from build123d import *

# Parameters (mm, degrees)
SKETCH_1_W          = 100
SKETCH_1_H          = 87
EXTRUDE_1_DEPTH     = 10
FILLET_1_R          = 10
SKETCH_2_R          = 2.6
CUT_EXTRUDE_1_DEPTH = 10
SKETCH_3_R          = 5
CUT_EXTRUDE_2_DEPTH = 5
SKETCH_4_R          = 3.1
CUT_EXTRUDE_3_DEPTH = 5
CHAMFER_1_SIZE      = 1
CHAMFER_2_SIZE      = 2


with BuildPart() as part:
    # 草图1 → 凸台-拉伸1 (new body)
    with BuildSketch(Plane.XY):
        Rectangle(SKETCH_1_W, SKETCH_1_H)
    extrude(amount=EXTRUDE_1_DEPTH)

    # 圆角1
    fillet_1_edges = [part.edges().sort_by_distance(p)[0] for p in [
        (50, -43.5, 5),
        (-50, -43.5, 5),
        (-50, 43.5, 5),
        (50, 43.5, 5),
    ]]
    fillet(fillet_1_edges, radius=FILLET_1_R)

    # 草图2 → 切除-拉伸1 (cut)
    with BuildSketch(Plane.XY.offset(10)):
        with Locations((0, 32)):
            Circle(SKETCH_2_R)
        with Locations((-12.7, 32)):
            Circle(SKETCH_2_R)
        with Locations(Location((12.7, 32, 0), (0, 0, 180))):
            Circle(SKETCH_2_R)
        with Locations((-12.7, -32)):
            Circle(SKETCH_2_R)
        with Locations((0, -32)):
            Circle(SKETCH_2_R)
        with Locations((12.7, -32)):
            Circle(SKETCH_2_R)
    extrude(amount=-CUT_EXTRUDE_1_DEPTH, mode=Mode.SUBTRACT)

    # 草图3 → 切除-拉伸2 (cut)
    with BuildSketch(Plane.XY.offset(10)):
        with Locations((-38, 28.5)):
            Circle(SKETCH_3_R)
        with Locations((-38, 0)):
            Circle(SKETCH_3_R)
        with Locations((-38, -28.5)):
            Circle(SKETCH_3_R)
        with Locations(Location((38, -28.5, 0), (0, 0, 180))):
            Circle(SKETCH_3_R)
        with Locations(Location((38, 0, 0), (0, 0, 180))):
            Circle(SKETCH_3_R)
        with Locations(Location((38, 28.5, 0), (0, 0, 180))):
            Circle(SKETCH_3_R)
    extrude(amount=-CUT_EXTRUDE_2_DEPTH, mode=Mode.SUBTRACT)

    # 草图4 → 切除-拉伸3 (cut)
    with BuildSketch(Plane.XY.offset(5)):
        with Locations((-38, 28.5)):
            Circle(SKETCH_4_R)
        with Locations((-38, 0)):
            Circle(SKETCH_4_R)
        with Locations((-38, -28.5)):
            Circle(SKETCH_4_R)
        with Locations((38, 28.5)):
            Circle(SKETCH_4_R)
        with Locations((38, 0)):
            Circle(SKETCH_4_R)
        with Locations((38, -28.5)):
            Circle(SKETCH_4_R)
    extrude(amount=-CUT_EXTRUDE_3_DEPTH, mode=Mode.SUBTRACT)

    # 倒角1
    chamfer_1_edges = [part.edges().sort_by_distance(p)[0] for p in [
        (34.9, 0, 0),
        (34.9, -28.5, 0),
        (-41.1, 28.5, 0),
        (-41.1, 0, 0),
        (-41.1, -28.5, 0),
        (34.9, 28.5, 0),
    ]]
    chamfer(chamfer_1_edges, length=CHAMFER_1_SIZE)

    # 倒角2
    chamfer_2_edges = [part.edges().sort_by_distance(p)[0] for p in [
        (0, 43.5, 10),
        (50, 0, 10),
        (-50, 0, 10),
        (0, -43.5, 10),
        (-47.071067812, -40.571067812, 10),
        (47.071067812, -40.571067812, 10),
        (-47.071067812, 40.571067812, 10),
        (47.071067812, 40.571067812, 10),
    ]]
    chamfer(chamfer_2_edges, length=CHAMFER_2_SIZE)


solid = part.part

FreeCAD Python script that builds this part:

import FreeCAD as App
import Part
import Sketcher
from FreeCAD import Vector
Q = App.Units.Quantity


def edges_at(feature, points):
    """Names of the edges that pass closest to the given points."""
    edges = feature.Shape.Edges
    near = lambda p: min(range(len(edges)), key=lambda i: edges[i].distToShape(Part.Vertex(*p))[0])
    return sorted({f"Edge{near(p) + 1}" for p in points})


def add_polygon(sketch, points):
    """Adds a closed chain of lines whose ends are joined by coincident constraints."""
    first, n = sketch.GeometryCount, len(points)
    for a, b in zip(points, points[1:] + points[:1]):
        sketch.addGeometry(Part.LineSegment(App.Vector(*a, 0), App.Vector(*b, 0)), False)
    for i in range(n):
        sketch.addConstraint(Sketcher.Constraint("Coincident", first + i, 2, first + (i + 1) % n, 1))

doc = App.newDocument("Part")
body = doc.addObject("PartDesign::Body", "Body")

sketch1 = body.newObject("Sketcher::SketchObject", "Sketch")
sketch1.AttachmentSupport = (doc.getObject("XY_Plane"), [""])
sketch1.MapMode = "FlatFace"
add_polygon(sketch1, [(-50, 44), (-50, -44), (50, -44), (50, 44)])
sketch1.addConstraint([
    Sketcher.Constraint("Vertical", 0),
    Sketcher.Constraint("Horizontal", 1),
    Sketcher.Constraint("Vertical", 2),
    Sketcher.Constraint("Horizontal", 3),
    Sketcher.Constraint("Symmetric", 0, 2, 2, 2, -1, 1),
    Sketcher.Constraint("DistanceX", 1, 1, 1, 2, Q("100 mm")),
    Sketcher.Constraint("DistanceY", 0, 2, 0, 1, Q("87 mm")),
])
pad1 = body.newObject("PartDesign::Pad", "Pad")
pad1.Profile = sketch1
pad1.Length = 10
doc.recompute()

fillet = body.newObject("PartDesign::Fillet", "Fillet")
fillet.Base = (pad1, edges_at(pad1, [
    (50, -43.5, 5),
    (-50, -43.5, 5),
    (-50, 43.5, 5),
    (50, 43.5, 5),
]))
fillet.Radius = 10

sketch2 = body.newObject("Sketcher::SketchObject", "Sketch001")
sketch2.AttachmentSupport = (doc.getObject("XY_Plane"), [""])
sketch2.MapMode = "FlatFace"
sketch2.AttachmentOffset = App.Placement(Vector(0, 0, 10), App.Rotation())
sketch2.addGeometry([
    Part.Circle(Vector(0, 32, 0), Vector(0, 0, 1), 2.6),
    Part.Circle(Vector(-12.7, 32, 0), Vector(0, 0, 1), 2.6),
    Part.Circle(Vector(12.7, 32, 0), Vector(0, 0, 1), 2.6),
    Part.Circle(Vector(-12.7, -32, 0), Vector(0, 0, 1), 2.6),
    Part.Circle(Vector(0, -32, 0), Vector(0, 0, 1), 2.6),
    Part.Circle(Vector(12.7, -32, 0), Vector(0, 0, 1), 2.6),
], False)
sketch2.addConstraint([
    Sketcher.Constraint("Equal", 0, 1),
    Sketcher.Constraint("Equal", 1, 2),
    Sketcher.Constraint("Equal", 2, 3),
    Sketcher.Constraint("Equal", 3, 4),
    Sketcher.Constraint("Equal", 4, 5),
    Sketcher.Constraint("Symmetric", 2, 3, 3, 3, -1, 1),
    Sketcher.Constraint("Symmetric", 0, 3, 4, 3, -1, 1),
    Sketcher.Constraint("Symmetric", 1, 3, 5, 3, -1, 1),
    Sketcher.Constraint("Symmetric", 1, 3, 2, 3, -2),
    Sketcher.Constraint("PointOnObject", 0, 3, -2),
    Sketcher.Constraint("Horizontal", 0, 3, 1, 3),
    Sketcher.Constraint("Diameter", 0, Q("5.2 mm")),
    Sketcher.Constraint("DistanceY", -1, 1, 0, 3, Q("32 mm")),
    Sketcher.Constraint("DistanceX", 1, 3, -1, 1, Q("12.7 mm")),
])
pocket1 = body.newObject("PartDesign::Pocket", "Pocket")
pocket1.Profile = sketch2
pocket1.Length = 10

sketch3 = body.newObject("Sketcher::SketchObject", "Sketch002")
sketch3.AttachmentSupport = (doc.getObject("XY_Plane"), [""])
sketch3.MapMode = "FlatFace"
sketch3.AttachmentOffset = App.Placement(Vector(0, 0, 10), App.Rotation())
sketch3.addGeometry([
    Part.Circle(Vector(-38, 28, 0), Vector(0, 0, 1), 5),
    Part.Circle(Vector(-38, 0, 0), Vector(0, 0, 1), 5),
    Part.Circle(Vector(-38, -28, 0), Vector(0, 0, 1), 5),
    Part.Circle(Vector(38, -28, 0), Vector(0, 0, 1), 5),
    Part.Circle(Vector(38, 0, 0), Vector(0, 0, 1), 5),
    Part.Circle(Vector(38, 28, 0), Vector(0, 0, 1), 5),
], False)
sketch3.addConstraint([
    Sketcher.Constraint("Equal", 0, 1),
    Sketcher.Constraint("Equal", 1, 2),
    Sketcher.Constraint("Equal", 2, 3),
    Sketcher.Constraint("Equal", 3, 4),
    Sketcher.Constraint("Equal", 4, 5),
    Sketcher.Constraint("Symmetric", 0, 3, 3, 3, -1, 1),
    Sketcher.Constraint("Symmetric", 1, 3, 4, 3, -1, 1),
    Sketcher.Constraint("Symmetric", 2, 3, 5, 3, -1, 1),
    Sketcher.Constraint("Symmetric", 2, 3, 3, 3, -2),
    Sketcher.Constraint("PointOnObject", 1, 3, -1),
    Sketcher.Constraint("Vertical", 0, 3, 1, 3),
    Sketcher.Constraint("Diameter", 0, Q("10 mm")),
    Sketcher.Constraint("DistanceX", 0, 3, -1, 1, Q("38 mm")),
    Sketcher.Constraint("DistanceY", 2, 3, 0, 3, Q("57 mm")),
])
pocket2 = body.newObject("PartDesign::Pocket", "Pocket001")
pocket2.Profile = sketch3
pocket2.Length = 5

sketch4 = body.newObject("Sketcher::SketchObject", "Sketch003")
sketch4.AttachmentSupport = (doc.getObject("XY_Plane"), [""])
sketch4.MapMode = "FlatFace"
sketch4.AttachmentOffset = App.Placement(Vector(0, 0, 5), App.Rotation())
sketch4.addGeometry([
    Part.Circle(Vector(-38, 28.5, 0), Vector(0, 0, 1), 3.1),
    Part.Circle(Vector(-38, 0, 0), Vector(0, 0, 1), 3.1),
    Part.Circle(Vector(-38, -28.5, 0), Vector(0, 0, 1), 3.1),
    Part.Circle(Vector(38, 28.5, 0), Vector(0, 0, 1), 3.1),
    Part.Circle(Vector(38, 0, 0), Vector(0, 0, 1), 3.1),
    Part.Circle(Vector(38, -28.5, 0), Vector(0, 0, 1), 3.1),
], False)
sketch4.addConstraint([
    Sketcher.Constraint("Equal", 0, 1),
    Sketcher.Constraint("Equal", 1, 2),
    Sketcher.Constraint("Equal", 2, 3),
    Sketcher.Constraint("Equal", 3, 4),
    Sketcher.Constraint("Equal", 4, 5),
    Sketcher.Constraint("Symmetric", 2, 3, 3, 3, -1, 1),
    Sketcher.Constraint("Symmetric", 1, 3, 4, 3, -1, 1),
    Sketcher.Constraint("Symmetric", 0, 3, 5, 3, -1, 1),
    Sketcher.Constraint("Symmetric", 0, 3, 3, 3, -2),
    Sketcher.Constraint("PointOnObject", 1, 3, -1),
    Sketcher.Constraint("Vertical", 0, 3, 1, 3),
    Sketcher.Constraint("Diameter", 0, Q("6.2 mm")),
    Sketcher.Constraint("DistanceX", 0, 3, -1, 1, Q("38 mm")),
    Sketcher.Constraint("DistanceY", 2, 3, 0, 3, Q("57 mm")),
])
pocket3 = body.newObject("PartDesign::Pocket", "Pocket002")
pocket3.Profile = sketch4
pocket3.Length = 5
doc.recompute()

chamfer = body.newObject("PartDesign::Chamfer", "Chamfer")
chamfer.Base = (pocket3, edges_at(pocket3, [
    (34.9, 0, 0),
    (34.9, -28.5, 0),
    (-41.1, 28.5, 0),
    (-41.1, 0, 0),
    (-41.1, -28.5, 0),
    (34.9, 28.5, 0),
]))
chamfer.Size = 1
doc.recompute()

chamfer2 = body.newObject("PartDesign::Chamfer", "Chamfer001")
chamfer2.Base = (chamfer, edges_at(chamfer, [
    (0, 43.5, 10),
    (50, 0, 10),
    (-50, 0, 10),
    (0, -43.5, 10),
    (-47.071, -40.571, 10),
    (47.071, -40.571, 10),
    (-47.071, 40.571, 10),
    (47.071, 40.571, 10),
]))
chamfer2.Size = 2

doc.recompute()
